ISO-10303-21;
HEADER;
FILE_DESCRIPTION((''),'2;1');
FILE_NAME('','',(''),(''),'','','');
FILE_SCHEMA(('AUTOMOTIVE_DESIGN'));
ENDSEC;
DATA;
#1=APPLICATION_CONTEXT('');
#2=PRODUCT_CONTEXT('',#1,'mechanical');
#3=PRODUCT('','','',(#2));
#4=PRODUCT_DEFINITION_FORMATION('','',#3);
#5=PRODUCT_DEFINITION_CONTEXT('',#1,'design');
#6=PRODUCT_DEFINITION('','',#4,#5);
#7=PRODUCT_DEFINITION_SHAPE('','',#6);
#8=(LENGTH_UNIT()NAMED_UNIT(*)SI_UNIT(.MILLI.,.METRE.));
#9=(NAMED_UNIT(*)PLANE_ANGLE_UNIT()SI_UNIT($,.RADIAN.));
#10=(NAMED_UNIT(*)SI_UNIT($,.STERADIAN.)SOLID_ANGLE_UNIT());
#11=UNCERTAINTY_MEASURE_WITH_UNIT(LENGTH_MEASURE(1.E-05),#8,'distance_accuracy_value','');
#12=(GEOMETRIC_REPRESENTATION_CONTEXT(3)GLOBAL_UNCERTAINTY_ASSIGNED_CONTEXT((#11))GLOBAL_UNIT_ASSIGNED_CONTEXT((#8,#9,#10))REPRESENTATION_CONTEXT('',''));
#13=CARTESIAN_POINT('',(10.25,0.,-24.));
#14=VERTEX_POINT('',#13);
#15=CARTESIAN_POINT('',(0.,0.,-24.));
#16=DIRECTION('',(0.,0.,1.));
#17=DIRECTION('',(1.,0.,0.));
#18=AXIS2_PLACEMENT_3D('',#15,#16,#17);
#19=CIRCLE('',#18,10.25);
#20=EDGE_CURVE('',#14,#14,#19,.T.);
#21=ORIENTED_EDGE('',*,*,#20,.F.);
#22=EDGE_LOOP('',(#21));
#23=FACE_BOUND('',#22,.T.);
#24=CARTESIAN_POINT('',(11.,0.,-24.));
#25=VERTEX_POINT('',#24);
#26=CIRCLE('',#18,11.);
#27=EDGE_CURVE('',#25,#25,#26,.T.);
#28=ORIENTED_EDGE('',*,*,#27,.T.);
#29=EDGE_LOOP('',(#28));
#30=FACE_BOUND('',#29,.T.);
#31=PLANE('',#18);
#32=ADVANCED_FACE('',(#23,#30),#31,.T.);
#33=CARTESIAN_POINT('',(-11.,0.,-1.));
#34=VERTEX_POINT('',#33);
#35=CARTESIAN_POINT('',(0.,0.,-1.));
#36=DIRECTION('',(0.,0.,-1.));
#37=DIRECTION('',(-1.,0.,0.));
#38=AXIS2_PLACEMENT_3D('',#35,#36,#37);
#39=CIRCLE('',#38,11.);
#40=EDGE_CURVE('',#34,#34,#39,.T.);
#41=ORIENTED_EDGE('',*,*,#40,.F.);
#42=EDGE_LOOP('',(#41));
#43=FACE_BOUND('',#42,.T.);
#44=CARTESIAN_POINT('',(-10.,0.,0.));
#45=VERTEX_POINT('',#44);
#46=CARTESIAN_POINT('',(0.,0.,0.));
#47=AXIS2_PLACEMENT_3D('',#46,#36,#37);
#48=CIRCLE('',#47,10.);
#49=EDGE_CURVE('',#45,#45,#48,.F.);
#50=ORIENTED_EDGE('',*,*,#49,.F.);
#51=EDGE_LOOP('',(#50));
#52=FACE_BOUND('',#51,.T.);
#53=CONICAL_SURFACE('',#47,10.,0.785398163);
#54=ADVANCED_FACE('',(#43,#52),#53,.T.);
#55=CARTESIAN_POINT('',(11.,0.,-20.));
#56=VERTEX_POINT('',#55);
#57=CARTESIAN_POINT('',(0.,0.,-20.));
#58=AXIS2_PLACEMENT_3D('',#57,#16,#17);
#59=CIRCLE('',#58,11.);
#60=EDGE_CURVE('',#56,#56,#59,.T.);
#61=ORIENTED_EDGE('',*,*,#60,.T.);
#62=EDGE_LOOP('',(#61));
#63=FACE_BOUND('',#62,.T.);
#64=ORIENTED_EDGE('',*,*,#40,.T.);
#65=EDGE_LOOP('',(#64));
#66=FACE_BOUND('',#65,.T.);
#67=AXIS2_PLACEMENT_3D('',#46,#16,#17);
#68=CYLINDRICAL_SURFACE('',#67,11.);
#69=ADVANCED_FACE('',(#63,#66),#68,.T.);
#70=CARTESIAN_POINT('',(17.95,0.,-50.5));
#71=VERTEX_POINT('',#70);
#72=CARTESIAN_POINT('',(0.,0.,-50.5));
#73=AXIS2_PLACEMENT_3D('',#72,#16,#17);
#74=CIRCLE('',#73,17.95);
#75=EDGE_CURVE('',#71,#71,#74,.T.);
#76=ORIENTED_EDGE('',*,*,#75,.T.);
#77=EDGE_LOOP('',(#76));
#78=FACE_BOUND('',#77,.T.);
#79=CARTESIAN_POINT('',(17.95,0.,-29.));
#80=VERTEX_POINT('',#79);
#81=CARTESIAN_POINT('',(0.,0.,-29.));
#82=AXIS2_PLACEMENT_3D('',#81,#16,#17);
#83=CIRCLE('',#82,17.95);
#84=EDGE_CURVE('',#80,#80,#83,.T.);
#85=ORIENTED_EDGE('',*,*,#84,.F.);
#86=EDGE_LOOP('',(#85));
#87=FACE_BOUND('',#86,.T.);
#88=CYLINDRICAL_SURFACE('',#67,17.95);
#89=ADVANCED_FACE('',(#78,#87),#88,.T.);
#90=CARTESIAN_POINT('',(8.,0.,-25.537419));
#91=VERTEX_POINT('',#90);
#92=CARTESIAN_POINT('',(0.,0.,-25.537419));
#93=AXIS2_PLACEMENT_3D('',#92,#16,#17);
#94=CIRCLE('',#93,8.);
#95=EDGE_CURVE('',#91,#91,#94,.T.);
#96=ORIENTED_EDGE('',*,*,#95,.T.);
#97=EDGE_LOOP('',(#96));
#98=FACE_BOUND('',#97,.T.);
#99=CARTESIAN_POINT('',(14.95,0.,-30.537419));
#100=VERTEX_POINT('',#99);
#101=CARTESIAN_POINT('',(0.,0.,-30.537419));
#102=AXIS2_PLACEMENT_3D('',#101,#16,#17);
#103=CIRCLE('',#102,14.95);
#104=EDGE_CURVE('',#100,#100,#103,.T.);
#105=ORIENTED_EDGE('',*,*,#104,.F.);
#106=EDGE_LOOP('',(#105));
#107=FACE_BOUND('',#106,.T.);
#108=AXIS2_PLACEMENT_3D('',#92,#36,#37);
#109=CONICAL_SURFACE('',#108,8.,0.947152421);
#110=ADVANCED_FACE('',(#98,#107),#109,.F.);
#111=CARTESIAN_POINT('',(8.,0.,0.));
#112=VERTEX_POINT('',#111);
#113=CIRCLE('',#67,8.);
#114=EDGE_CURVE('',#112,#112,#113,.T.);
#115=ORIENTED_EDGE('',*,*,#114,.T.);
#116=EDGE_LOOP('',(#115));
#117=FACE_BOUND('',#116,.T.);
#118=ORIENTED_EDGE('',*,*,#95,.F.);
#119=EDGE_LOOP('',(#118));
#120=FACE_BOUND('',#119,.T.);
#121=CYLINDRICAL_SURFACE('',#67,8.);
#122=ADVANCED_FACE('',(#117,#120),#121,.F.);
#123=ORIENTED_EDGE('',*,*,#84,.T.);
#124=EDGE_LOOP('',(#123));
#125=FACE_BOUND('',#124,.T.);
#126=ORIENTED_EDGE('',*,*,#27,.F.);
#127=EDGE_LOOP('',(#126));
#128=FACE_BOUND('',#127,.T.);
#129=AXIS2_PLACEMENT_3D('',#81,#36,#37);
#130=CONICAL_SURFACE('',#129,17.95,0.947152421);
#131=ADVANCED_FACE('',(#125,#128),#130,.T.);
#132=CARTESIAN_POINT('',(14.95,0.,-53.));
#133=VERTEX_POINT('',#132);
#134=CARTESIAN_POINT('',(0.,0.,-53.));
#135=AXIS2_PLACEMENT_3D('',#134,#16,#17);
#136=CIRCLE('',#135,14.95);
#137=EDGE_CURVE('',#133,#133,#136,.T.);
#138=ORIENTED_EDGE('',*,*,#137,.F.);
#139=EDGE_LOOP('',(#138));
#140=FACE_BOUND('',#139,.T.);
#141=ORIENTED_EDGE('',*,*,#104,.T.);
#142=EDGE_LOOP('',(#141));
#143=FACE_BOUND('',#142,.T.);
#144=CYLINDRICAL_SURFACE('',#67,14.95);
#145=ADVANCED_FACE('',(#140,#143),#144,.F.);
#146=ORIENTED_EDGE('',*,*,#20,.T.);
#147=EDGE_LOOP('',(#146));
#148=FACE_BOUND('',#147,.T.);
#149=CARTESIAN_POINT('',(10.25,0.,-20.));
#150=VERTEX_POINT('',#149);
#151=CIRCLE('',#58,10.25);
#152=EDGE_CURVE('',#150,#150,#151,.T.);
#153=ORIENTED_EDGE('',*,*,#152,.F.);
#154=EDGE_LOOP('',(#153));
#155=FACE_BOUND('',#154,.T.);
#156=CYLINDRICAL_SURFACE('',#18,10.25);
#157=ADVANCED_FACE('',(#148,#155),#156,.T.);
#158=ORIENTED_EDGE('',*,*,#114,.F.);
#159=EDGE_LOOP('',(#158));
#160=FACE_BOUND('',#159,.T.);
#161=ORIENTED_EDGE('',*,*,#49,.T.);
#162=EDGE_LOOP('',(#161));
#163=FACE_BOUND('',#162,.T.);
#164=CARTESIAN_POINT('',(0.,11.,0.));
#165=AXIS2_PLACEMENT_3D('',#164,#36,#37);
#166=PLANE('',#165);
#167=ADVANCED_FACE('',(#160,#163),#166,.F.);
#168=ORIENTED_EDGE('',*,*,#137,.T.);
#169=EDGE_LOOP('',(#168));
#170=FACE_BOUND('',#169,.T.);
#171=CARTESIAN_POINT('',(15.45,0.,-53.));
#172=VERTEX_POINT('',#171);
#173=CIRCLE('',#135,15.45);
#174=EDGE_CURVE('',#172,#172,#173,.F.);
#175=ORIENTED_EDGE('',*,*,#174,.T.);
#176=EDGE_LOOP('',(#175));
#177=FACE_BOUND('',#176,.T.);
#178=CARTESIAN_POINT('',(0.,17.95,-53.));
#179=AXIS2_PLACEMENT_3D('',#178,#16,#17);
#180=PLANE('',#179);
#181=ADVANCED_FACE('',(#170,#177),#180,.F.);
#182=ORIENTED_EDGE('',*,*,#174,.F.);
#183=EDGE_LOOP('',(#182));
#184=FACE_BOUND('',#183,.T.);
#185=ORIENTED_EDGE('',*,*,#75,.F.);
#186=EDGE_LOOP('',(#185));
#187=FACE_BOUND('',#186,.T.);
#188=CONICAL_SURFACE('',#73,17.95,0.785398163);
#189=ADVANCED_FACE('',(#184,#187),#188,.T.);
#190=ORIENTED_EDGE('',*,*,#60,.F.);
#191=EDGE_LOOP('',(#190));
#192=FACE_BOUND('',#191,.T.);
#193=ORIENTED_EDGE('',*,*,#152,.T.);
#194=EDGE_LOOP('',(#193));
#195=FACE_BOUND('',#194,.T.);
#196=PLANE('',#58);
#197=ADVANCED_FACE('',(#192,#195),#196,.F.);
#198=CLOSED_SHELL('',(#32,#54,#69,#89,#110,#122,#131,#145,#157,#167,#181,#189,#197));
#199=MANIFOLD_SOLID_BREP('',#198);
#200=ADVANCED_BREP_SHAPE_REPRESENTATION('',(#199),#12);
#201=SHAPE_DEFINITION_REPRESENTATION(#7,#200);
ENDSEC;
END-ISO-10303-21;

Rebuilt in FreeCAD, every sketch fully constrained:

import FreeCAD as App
import Part
import Sketcher
Q = App.Units.Quantity


def edges_at(feature, points):
    """Names of the edges that pass closest to the given points."""
    edges = feature.Shape.Edges
    near = lambda p: min(range(len(edges)), key=lambda i: edges[i].distToShape(Part.Vertex(*p))[0])
    return sorted({f"Edge{near(p) + 1}" for p in points})

doc = App.newDocument("Part")
params = doc.addObject("Spreadsheet::Sheet", "Params")
for row, (alias, value) in enumerate([
    ("sketch1_width", "3 mm"),
    ("sketch1_height", "24 mm"),
    ("revolution_angle", "360 deg"),
    ("chamfer_size", "2.5 mm"),
    ("sketch2_diameter", "22 mm"),
    ("sketch2_diameter2", "20.5 mm"),
    ("pocket1_length", "4 mm"),
    ("chamfer2_size", "1 mm"),
], start=1):
    params.set(f"A{row}", alias)
    params.set(f"B{row}", "=" + value)
    params.setAlias(f"B{row}", alias)

body = doc.addObject("PartDesign::Body", "Body")

sketch1 = doc.addObject("Sketcher::SketchObject", "Sketch")
body.addObject(sketch1)
sketch1.AttachmentSupport = (doc.YZ_Plane, [""])
sketch1.MapMode = "FlatFace"
sketch1.addGeometry(Part.LineSegment(App.Vector(11, -24, 0), App.Vector(11, 0, 0)), False)
sketch1.addGeometry(Part.LineSegment(App.Vector(11, 0, 0), App.Vector(8, 0, 0)), False)
sketch1.addGeometry(Part.LineSegment(App.Vector(8, 0, 0), App.Vector(8, -25.5, 0)), False)
sketch1.addGeometry(Part.LineSegment(App.Vector(8, -25.5, 0), App.Vector(14.9, -30.5, 0)), False)
sketch1.addGeometry(Part.LineSegment(App.Vector(14.9, -30.5, 0), App.Vector(14.9, -53, 0)), False)
sketch1.addGeometry(Part.LineSegment(App.Vector(14.9, -53, 0), App.Vector(17.9, -53, 0)), False)
sketch1.addGeometry(Part.LineSegment(App.Vector(17.9, -53, 0), App.Vector(17.9, -29, 0)), False)
sketch1.addGeometry(Part.LineSegment(App.Vector(17.9, -29, 0), App.Vector(11, -24, 0)), False)
sketch1.addConstraint(Sketcher.Constraint("Coincident", 0, 2, 1, 1))
sketch1.addConstraint(Sketcher.Constraint("Coincident", 1, 2, 2, 1))
sketch1.addConstraint(Sketcher.Constraint("Coincident", 2, 2, 3, 1))
sketch1.addConstraint(Sketcher.Constraint("Coincident", 3, 2, 4, 1))
sketch1.addConstraint(Sketcher.Constraint("Coincident", 4, 2, 5, 1))
sketch1.addConstraint(Sketcher.Constraint("Coincident", 5, 2, 6, 1))
sketch1.addConstraint(Sketcher.Constraint("Coincident", 6, 2, 7, 1))
sketch1.addConstraint(Sketcher.Constraint("Coincident", 7, 2, 0, 1))
sketch1.addConstraint(Sketcher.Constraint("Vertical", 0))
sketch1.addConstraint(Sketcher.Constraint("Horizontal", 1))
sketch1.addConstraint(Sketcher.Constraint("Vertical", 2))
sketch1.addConstraint(Sketcher.Constraint("Vertical", 4))
sketch1.addConstraint(Sketcher.Constraint("Horizontal", 5))
sketch1.addConstraint(Sketcher.Constraint("Vertical", 6))
sketch1.addConstraint(Sketcher.Constraint("PointOnObject", 0, 2, -1))
sketch1.addConstraint(Sketcher.Constraint("Parallel", 3, 7))
sketch1.addConstraint(Sketcher.Constraint("Equal", 1, 5))
sketch1.addConstraint(Sketcher.Constraint("Equal", 0, 6))
sketch1.addConstraint(Sketcher.Constraint("DistanceX", 1, 2, 1, 1, Q("3 mm")))
sketch1.addConstraint(Sketcher.Constraint("DistanceY", 0, 1, 0, 2, Q("24 mm")))
sketch1.addConstraint(Sketcher.Constraint("DistanceX", -1, 1, 0, 2, Q("11 mm")))
sketch1.addConstraint(Sketcher.Constraint("DistanceY", 4, 2, -1, 1, Q("53 mm")))
sketch1.addConstraint(Sketcher.Constraint("DistanceX", -1, 1, 3, 2, Q("14.95 mm")))
sketch1.addConstraint(Sketcher.Constraint("DistanceY", 2, 2, 2, 1, Q("25.537419 mm")))
sketch1.setExpression("Constraints[18]", "Params.sketch1_width")
sketch1.setExpression("Constraints[19]", "Params.sketch1_height")
revolution = doc.addObject("PartDesign::Revolution", "Revolution")
body.addObject(revolution)
revolution.Profile = sketch1
revolution.ReferenceAxis = (sketch1, ["V_Axis"])
revolution.setExpression("Angle", "Params.revolution_angle")
doc.recompute()

chamfer = doc.addObject("PartDesign::Chamfer", "Chamfer")
body.addObject(chamfer)
chamfer.Base = (revolution, edges_at(revolution, [(-17.95, 0, -53)]))
chamfer.setExpression("Size", "Params.chamfer_size")

sketch2 = doc.addObject("Sketcher::SketchObject", "Sketch001")
body.addObject(sketch2)
sketch2.AttachmentSupport = (doc.XY_Plane, [""])
sketch2.MapMode = "FlatFace"
sketch2.AttachmentOffset = App.Placement(App.Vector(0, 0, -24), App.Rotation())
sketch2.addGeometry(Part.Circle(App.Vector(0, 0, 0), App.Vector(0, 0, 1), 11), False)
sketch2.addGeometry(Part.Circle(App.Vector(0, 0, 0), App.Vector(0, 0, 1), 10), False)
sketch2.addConstraint(Sketcher.Constraint("Coincident", 0, 3, -1, 1))
sketch2.addConstraint(Sketcher.Constraint("Coincident", 1, 3, -1, 1))
sketch2.addConstraint(Sketcher.Constraint("Diameter", 0, Q("22 mm")))
sketch2.addConstraint(Sketcher.Constraint("Diameter", 1, Q("20.5 mm")))
sketch2.setExpression("Constraints[2]", "Params.sketch2_diameter")
sketch2.setExpression("Constraints[3]", "Params.sketch2_diameter2")
pocket1 = doc.addObject("PartDesign::Pocket", "Pocket")
body.addObject(pocket1)
pocket1.Profile = sketch2
pocket1.setExpression("Length", "Params.pocket1_length")
pocket1.Reversed = True
doc.recompute()

chamfer2 = doc.addObject("PartDesign::Chamfer", "Chamfer001")
body.addObject(chamfer2)
chamfer2.Base = (pocket1, edges_at(pocket1, [(-11, 0, 0)]))
chamfer2.setExpression("Size", "Params.chamfer2_size")

doc.recompute()
